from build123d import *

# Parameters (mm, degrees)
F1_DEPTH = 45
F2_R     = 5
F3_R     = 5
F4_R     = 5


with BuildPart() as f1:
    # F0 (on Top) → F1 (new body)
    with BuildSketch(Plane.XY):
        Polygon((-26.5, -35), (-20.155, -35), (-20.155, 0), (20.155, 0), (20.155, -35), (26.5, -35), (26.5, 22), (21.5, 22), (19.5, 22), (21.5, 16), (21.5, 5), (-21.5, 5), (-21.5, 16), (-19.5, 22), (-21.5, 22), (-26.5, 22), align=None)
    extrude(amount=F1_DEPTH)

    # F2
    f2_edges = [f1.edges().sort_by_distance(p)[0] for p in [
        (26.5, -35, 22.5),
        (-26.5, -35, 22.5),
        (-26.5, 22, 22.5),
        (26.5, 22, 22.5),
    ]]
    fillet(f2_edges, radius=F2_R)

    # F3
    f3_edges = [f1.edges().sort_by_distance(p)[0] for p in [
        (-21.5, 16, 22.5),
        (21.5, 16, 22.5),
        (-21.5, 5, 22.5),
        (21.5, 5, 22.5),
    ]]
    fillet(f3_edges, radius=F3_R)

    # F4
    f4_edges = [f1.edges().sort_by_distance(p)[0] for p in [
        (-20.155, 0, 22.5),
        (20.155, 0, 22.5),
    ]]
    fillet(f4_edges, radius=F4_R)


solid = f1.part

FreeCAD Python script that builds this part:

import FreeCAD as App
import Part
import Sketcher
Q = App.Units.Quantity


def edges_at(feature, points):
    """Names of the edges that pass closest to the given points."""
    edges = feature.Shape.Edges
    near = lambda p: min(range(len(edges)), key=lambda i: edges[i].distToShape(Part.Vertex(*p))[0])
    return sorted({f"Edge{near(p) + 1}" for p in points})

doc = App.newDocument("Part")
body = doc.addObject("PartDesign::Body", "Body")

# Sketch on XY plane
sketch1 = body.newObject("Sketcher::SketchObject", "Sketch")
sketch1.AttachmentSupport = (doc.getObject("XY_Plane"), [""])
sketch1.MapMode = "FlatFace"
sketch1.addGeometry([
    Part.LineSegment(App.Vector(-26, -35, 0), App.Vector(-20, -35, 0)),  # 0
    Part.LineSegment(App.Vector(-20, -35, 0), App.Vector(-20, 0, 0)),  # 1
    Part.LineSegment(App.Vector(-20, 0, 0), App.Vector(20, 0, 0)),  # 2
    Part.LineSegment(App.Vector(20, 0, 0), App.Vector(20, -35, 0)),  # 3
    Part.LineSegment(App.Vector(20, -35, 0), App.Vector(26, -35, 0)),  # 4
    Part.LineSegment(App.Vector(26, -35, 0), App.Vector(26, 22, 0)),  # 5
    Part.LineSegment(App.Vector(26, 22, 0), App.Vector(20, 22, 0)),  # 6
    Part.LineSegment(App.Vector(20, 22, 0), App.Vector(22, 16, 0)),  # 7
    Part.LineSegment(App.Vector(22, 16, 0), App.Vector(22, 5, 0)),  # 8
    Part.LineSegment(App.Vector(22, 5, 0), App.Vector(-22, 5, 0)),  # 9
    Part.LineSegment(App.Vector(-22, 5, 0), App.Vector(-22, 16, 0)),  # 10
    Part.LineSegment(App.Vector(-22, 16, 0), App.Vector(-20, 22, 0)),  # 11
    Part.LineSegment(App.Vector(-20, 22, 0), App.Vector(-26, 22, 0)),  # 12
    Part.LineSegment(App.Vector(-26, 22, 0), App.Vector(-26, -35, 0)),  # 13
], False)
sketch1.addConstraint([
    Sketcher.Constraint("Coincident", 0, 2, 1, 1),
    Sketcher.Constraint("Coincident", 1, 2, 2, 1),
    Sketcher.Constraint("Coincident", 2, 2, 3, 1),
    Sketcher.Constraint("Coincident", 3, 2, 4, 1),
    Sketcher.Constraint("Coincident", 4, 2, 5, 1),
    Sketcher.Constraint("Coincident", 5, 2, 6, 1),
    Sketcher.Constraint("Coincident", 6, 2, 7, 1),
    Sketcher.Constraint("Coincident", 7, 2, 8, 1),
    Sketcher.Constraint("Coincident", 8, 2, 9, 1),
    Sketcher.Constraint("Coincident", 9, 2, 10, 1),
    Sketcher.Constraint("Coincident", 10, 2, 11, 1),
    Sketcher.Constraint("Coincident", 11, 2, 12, 1),
    Sketcher.Constraint("Coincident", 12, 2, 13, 1),
    Sketcher.Constraint("Coincident", 13, 2, 0, 1),
    Sketcher.Constraint("Horizontal", 0),
    Sketcher.Constraint("Vertical", 1),
    Sketcher.Constraint("Horizontal", 2),
    Sketcher.Constraint("Vertical", 3),
    Sketcher.Constraint("Horizontal", 4),
    Sketcher.Constraint("Vertical", 5),
    Sketcher.Constraint("Horizontal", 6),
    Sketcher.Constraint("Vertical", 8),
    Sketcher.Constraint("Horizontal", 9),
    Sketcher.Constraint("Vertical", 10),
    Sketcher.Constraint("Horizontal", 12),
    Sketcher.Constraint("Vertical", 13),
    Sketcher.Constraint("Symmetric", 1, 2, 2, 2, -1, 1),
    Sketcher.Constraint("Symmetric", 7, 2, 10, 2, -2),
    Sketcher.Constraint("Symmetric", 6, 2, 11, 2, -2),
    Sketcher.Constraint("Symmetric", 4, 2, 13, 2, -2),
    Sketcher.Constraint("DistanceX", 6, 2, 6, 1, Q("7 mm")),
    Sketcher.Constraint("DistanceX", 9, 2, 9, 1, Q("43 mm")),
    Sketcher.Constraint("DistanceY", 1, 1, 1, 2, Q("35 mm")),
    Sketcher.Constraint("DistanceY", 5, 1, 5, 2, Q("57 mm")),
    Sketcher.Constraint("DistanceY", 8, 2, 8, 1, Q("11 mm")),
    Sketcher.Constraint("DistanceY", -1, 1, 7, 2, Q("16 mm")),
    Sketcher.Constraint("DistanceX", 6, 2, 7, 2, Q("2 mm")),
    Sketcher.Constraint("DistanceX", 2, 1, 2, 2, Q("40.31 mm")),
])
pad1 = body.newObject("PartDesign::Pad", "Pad")
pad1.Profile = sketch1
pad1.Length = 45
doc.recompute()

fillet = body.newObject("PartDesign::Fillet", "Fillet")
fillet.Base = (pad1, edges_at(pad1, [
    (26.5, -35, 22.5),
    (-26.5, -35, 22.5),
    (-26.5, 22, 22.5),
    (26.5, 22, 22.5),
]))
fillet.Radius = 5
doc.recompute()

fillet2 = body.newObject("PartDesign::Fillet", "Fillet001")
fillet2.Base = (fillet, edges_at(fillet, [
    (-21.5, 16, 22.5),
    (21.5, 16, 22.5),
    (-21.5, 5, 22.5),
    (21.5, 5, 22.5),
]))
fillet2.Radius = 5
doc.recompute()

fillet3 = body.newObject("PartDesign::Fillet", "Fillet002")
fillet3.Base = (fillet2, edges_at(fillet2, [(-20.155, 0, 22.5), (20.155, 0, 22.5)]))
fillet3.Radius = 5

doc.recompute()
